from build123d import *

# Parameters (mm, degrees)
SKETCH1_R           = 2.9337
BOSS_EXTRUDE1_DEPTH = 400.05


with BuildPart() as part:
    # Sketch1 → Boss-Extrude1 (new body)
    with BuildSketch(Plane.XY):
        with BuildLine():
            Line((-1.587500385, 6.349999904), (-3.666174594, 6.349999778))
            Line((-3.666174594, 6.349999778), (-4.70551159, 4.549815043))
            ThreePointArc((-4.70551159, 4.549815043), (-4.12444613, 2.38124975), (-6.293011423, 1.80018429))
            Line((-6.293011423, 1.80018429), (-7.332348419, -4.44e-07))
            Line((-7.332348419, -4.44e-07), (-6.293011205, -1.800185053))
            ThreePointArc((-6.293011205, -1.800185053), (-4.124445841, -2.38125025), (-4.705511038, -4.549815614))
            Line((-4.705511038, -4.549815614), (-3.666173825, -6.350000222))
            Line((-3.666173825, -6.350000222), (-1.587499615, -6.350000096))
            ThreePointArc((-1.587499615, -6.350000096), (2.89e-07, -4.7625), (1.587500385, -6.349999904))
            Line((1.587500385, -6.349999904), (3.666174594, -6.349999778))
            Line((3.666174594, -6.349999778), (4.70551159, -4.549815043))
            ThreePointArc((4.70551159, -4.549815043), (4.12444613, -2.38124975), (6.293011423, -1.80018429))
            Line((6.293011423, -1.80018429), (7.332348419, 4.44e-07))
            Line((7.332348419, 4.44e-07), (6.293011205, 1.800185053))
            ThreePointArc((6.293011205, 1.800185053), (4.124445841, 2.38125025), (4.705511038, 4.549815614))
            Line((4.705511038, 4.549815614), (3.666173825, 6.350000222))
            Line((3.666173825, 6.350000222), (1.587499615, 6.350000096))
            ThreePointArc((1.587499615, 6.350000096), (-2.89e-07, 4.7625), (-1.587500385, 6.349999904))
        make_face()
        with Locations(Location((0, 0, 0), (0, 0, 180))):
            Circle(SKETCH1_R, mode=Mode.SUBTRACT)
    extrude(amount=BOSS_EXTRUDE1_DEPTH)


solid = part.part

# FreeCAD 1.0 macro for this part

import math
import FreeCAD as App
import Part
import Sketcher

V = App.Vector
Q = App.Units.Quantity

doc = App.newDocument("Part")
body = doc.addObject("PartDesign::Body", "Body")

# Sketch on XY plane
sketch1 = doc.addObject("Sketcher::SketchObject", "Sketch")
body.addObject(sketch1)
sketch1.AttachmentSupport = (doc.XY_Plane, [""])
sketch1.MapMode = "FlatFace"
sketch1.addGeometry([
    Part.LineSegment(V(-1.5875, 6.35, 0), V(-3.666175, 6.35, 0)),  # 0
    Part.LineSegment(V(-3.666175, 6.35, 0), V(-4.705512, 4.549815, 0)),  # 1
    Part.ArcOfCircle(Part.Circle(V(-5.499262, 3.175, 0), V(0, 0, 1), 1.5875), math.radians(-119.999997), math.radians(60.000004)),  # 2
    Part.LineSegment(V(-6.293011, 1.800184, 0), V(-7.332348, 0, 0)),  # 3
    Part.LineSegment(V(-7.332348, 0, 0), V(-6.293011, -1.800185, 0)),  # 4
    Part.ArcOfCircle(Part.Circle(V(-5.499261, -3.175, 0), V(0, 0, 1), 1.5875), math.radians(-59.999997), math.radians(120.000004)),  # 5
    Part.LineSegment(V(-4.705511, -4.549816, 0), V(-3.666174, -6.35, 0)),  # 6
    Part.LineSegment(V(-3.666174, -6.35, 0), V(-1.5875, -6.35, 0)),  # 7
    Part.ArcOfCircle(Part.Circle(V(0, -6.35, 0), V(0, 0, 1), 1.5875), math.radians(0.000003), math.radians(180.000003)),  # 8
    Part.LineSegment(V(1.5875, -6.35, 0), V(3.666175, -6.35, 0)),  # 9
    Part.LineSegment(V(3.666175, -6.35, 0), V(4.705512, -4.549815, 0)),  # 10
    Part.ArcOfCircle(Part.Circle(V(5.499262, -3.175, 0), V(0, 0, 1), 1.5875), math.radians(60.000003), math.radians(240.000004)),  # 11
    Part.LineSegment(V(6.293011, -1.800184, 0), V(7.332348, 0, 0)),  # 12
    Part.LineSegment(V(7.332348, 0, 0), V(6.293011, 1.800185, 0)),  # 13
    Part.ArcOfCircle(Part.Circle(V(5.499261, 3.175, 0), V(0, 0, 1), 1.5875), math.radians(120.000003), math.radians(300.000004)),  # 14
    Part.LineSegment(V(4.705511, 4.549816, 0), V(3.666174, 6.35, 0)),  # 15
    Part.LineSegment(V(3.666174, 6.35, 0), V(1.5875, 6.35, 0)),  # 16
    Part.ArcOfCircle(Part.Circle(V(0, 6.35, 0), V(0, 0, 1), 1.5875), math.radians(-179.999997), math.radians(0.000003)),  # 17
    Part.Circle(V(0, 0, 0), V(0, 0, 1), 2.9337),  # 18
], False)
sketch1.addConstraint([
    Sketcher.Constraint("Coincident", 0, 2, 1, 1),
    Sketcher.Constraint("Coincident", 1, 2, 2, 2),
    Sketcher.Constraint("Coincident", 2, 1, 3, 1),
    Sketcher.Constraint("Coincident", 3, 2, 4, 1),
    Sketcher.Constraint("Coincident", 4, 2, 5, 2),
    Sketcher.Constraint("Coincident", 5, 1, 6, 1),
    Sketcher.Constraint("Coincident", 6, 2, 7, 1),
    Sketcher.Constraint("Coincident", 7, 2, 8, 2),
    Sketcher.Constraint("Coincident", 8, 1, 9, 1),
    Sketcher.Constraint("Coincident", 9, 2, 10, 1),
    Sketcher.Constraint("Coincident", 10, 2, 11, 2),
    Sketcher.Constraint("Coincident", 11, 1, 12, 1),
    Sketcher.Constraint("Coincident", 12, 2, 13, 1),
    Sketcher.Constraint("Coincident", 13, 2, 14, 2),
    Sketcher.Constraint("Coincident", 14, 1, 15, 1),
    Sketcher.Constraint("Coincident", 15, 2, 16, 1),
    Sketcher.Constraint("Coincident", 16, 2, 17, 2),
    Sketcher.Constraint("Coincident", 17, 1, 0, 1),
    Sketcher.Constraint("Horizontal", 0),
    Sketcher.Constraint("Horizontal", 7),
    Sketcher.Constraint("Horizontal", 9),
    Sketcher.Constraint("Horizontal", 16),
    Sketcher.Constraint("Coincident", 18, 3, -1, 1),
    Sketcher.Constraint("Equal", 2, 5),
    Sketcher.Constraint("Equal", 5, 8),
    Sketcher.Constraint("Equal", 8, 11),
    Sketcher.Constraint("Equal", 11, 14),
    Sketcher.Constraint("Equal", 14, 17),
    Sketcher.Constraint("Symmetric", 2, 3, 11, 3, -1, 1),
    Sketcher.Constraint("Symmetric", 5, 3, 14, 3, -1, 1),
    Sketcher.Constraint("Symmetric", 8, 3, 17, 3, -1, 1),
    Sketcher.Constraint("Symmetric", 0, 2, 9, 2, -1, 1),
    Sketcher.Constraint("Symmetric", 3, 2, 12, 2, -1, 1),
    Sketcher.Constraint("Symmetric", 6, 2, 15, 2, -1, 1),
    Sketcher.Constraint("Symmetric", 5, 3, 11, 3, -2),
    Sketcher.Constraint("Symmetric", 7, 2, 8, 1, -2),
    Sketcher.Constraint("PointOnObject", 3, 2, -1),
    Sketcher.Constraint("Parallel", 1, 3),
    Sketcher.Constraint("Parallel", 4, 6),
    Sketcher.Constraint("Parallel", 3, 10),
    Sketcher.Constraint("Parallel", 10, 12),
    Sketcher.Constraint("Parallel", 6, 13),
    Sketcher.Constraint("Parallel", 13, 15),
    Sketcher.Constraint("Horizontal", 17, 3, 0, 2),
    Sketcher.Constraint("Horizontal", 5, 1, 10, 2),
    Sketcher.Constraint("Horizontal", 4, 2, 11, 1),
    Sketcher.Constraint("Equal", 1, 3),
    Sketcher.Constraint("Diameter", 18, Q("0.231 in")),
    Sketcher.Constraint("Angle", 1, Q("-119.999997 deg")),
    Sketcher.Constraint("Radius", 2, Q("0.0625 in")),
    Sketcher.Constraint("DistanceY", 8, 3, 17, 3, Q("0.5 in")),
    Sketcher.Constraint("DistanceY", 5, 3, 2, 3, Q("0.25 in")),
    Sketcher.Constraint("DistanceX", 2, 3, 1, 2, Q("0.03125 in")),
    Sketcher.Constraint("DistanceX", 0, 2, 0, 1, Q("2.078674 mm")),
])
pad1 = doc.addObject("PartDesign::Pad", "Pad")
body.addObject(pad1)
pad1.Profile = sketch1
pad1.Length = Q("15.75 in")

doc.recompute()
